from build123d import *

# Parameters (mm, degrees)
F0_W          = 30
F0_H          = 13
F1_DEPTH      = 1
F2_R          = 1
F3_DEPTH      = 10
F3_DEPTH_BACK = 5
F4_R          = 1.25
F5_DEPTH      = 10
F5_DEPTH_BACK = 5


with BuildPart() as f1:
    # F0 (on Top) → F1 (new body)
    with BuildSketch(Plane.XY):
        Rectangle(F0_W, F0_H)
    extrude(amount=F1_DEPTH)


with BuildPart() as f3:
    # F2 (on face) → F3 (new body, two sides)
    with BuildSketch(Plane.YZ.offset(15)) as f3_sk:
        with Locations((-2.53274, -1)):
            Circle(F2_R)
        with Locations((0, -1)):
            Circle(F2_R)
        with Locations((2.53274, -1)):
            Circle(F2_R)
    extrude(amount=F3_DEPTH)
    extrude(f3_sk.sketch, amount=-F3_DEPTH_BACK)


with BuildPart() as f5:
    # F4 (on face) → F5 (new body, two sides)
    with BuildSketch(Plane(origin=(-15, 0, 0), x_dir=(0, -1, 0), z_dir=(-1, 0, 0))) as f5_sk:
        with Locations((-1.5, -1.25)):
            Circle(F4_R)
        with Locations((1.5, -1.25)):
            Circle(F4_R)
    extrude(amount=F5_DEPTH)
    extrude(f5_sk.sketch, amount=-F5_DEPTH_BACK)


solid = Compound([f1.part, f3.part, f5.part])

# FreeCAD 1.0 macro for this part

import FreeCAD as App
import Part
import Sketcher
from FreeCAD import Vector
Q = App.Units.Quantity

doc = App.newDocument("Part")
body = doc.addObject("PartDesign::Body", "Body")

# Sketch on XY plane
sketch1 = body.newObject("Sketcher::SketchObject", "Sketch")
sketch1.AttachmentSupport = (doc.getObject("XY_Plane"), [""])
sketch1.MapMode = "FlatFace"
sketch1.addGeometry([
    Part.LineSegment(Vector(-15, 6, 0), Vector(-15, -6, 0)),
    Part.LineSegment(Vector(-15, -6, 0), Vector(15, -6, 0)),
    Part.LineSegment(Vector(15, -6, 0), Vector(15, 6, 0)),
    Part.LineSegment(Vector(15, 6, 0), Vector(-15, 6, 0)),
], False)
sketch1.addConstraint([
    Sketcher.Constraint("Coincident", 0, 2, 1, 1),
    Sketcher.Constraint("Coincident", 1, 2, 2, 1),
    Sketcher.Constraint("Coincident", 2, 2, 3, 1),
    Sketcher.Constraint("Coincident", 3, 2, 0, 1),
    Sketcher.Constraint("Vertical", 0),
    Sketcher.Constraint("Horizontal", 1),
    Sketcher.Constraint("Vertical", 2),
    Sketcher.Constraint("Horizontal", 3),
    Sketcher.Constraint("Symmetric", 0, 2, 2, 2, -1, 1),
    Sketcher.Constraint("DistanceX", 1, 1, 1, 2, Q("30 mm")),
    Sketcher.Constraint("DistanceY", 0, 2, 0, 1, Q("13 mm")),
])
pad1 = body.newObject("PartDesign::Pad", "Pad")
pad1.Profile = sketch1
pad1.Length = 1
body2 = doc.addObject("PartDesign::Body", "Body001")
body2.AllowCompound = True

# Sketch on YZ plane
sketch2 = body2.newObject("Sketcher::SketchObject", "Sketch001")
sketch2.AttachmentSupport = (doc.getObject("YZ_Plane001"), [""])
sketch2.MapMode = "FlatFace"
sketch2.AttachmentOffset = App.Placement(Vector(0, 0, 15), App.Rotation())
sketch2.addGeometry([
    Part.Circle(Vector(-2.5, -1, 0), Vector(0, 0, 1), 1),
    Part.Circle(Vector(0, -1, 0), Vector(0, 0, 1), 1),
    Part.Circle(Vector(2.5, -1, 0), Vector(0, 0, 1), 1),
], False)
sketch2.addConstraint([
    Sketcher.Constraint("Equal", 0, 1),
    Sketcher.Constraint("Equal", 1, 2),
    Sketcher.Constraint("Symmetric", 0, 3, 2, 3, -2),
    Sketcher.Constraint("PointOnObject", 1, 3, -2),
    Sketcher.Constraint("Horizontal", 0, 3, 1, 3),
    Sketcher.Constraint("Diameter", 0, Q("2 mm")),
    Sketcher.Constraint("DistanceY", 0, 3, -1, 1, Q("1 mm")),
    Sketcher.Constraint("DistanceX", 0, 3, -1, 1, Q("2.53274 mm")),
])
pad2 = body2.newObject("PartDesign::Pad", "Pad001")
pad2.Profile = sketch2
pad2.Type = "TwoLengths"
pad2.Length = 10
pad2.Length2 = 5
body3 = doc.addObject("PartDesign::Body", "Body002")
body3.AllowCompound = True

# Sketch on YZ plane
sketch3 = body3.newObject("Sketcher::SketchObject", "Sketch002")
sketch3.AttachmentSupport = (doc.getObject("YZ_Plane002"), [""])
sketch3.MapMode = "FlatFace"
sketch3.AttachmentOffset = App.Placement(Vector(0, 0, -15), App.Rotation())
sketch3.addGeometry([
    Part.Circle(Vector(1.5, -1.2, 0), Vector(0, 0, 1), 1.2),
    Part.Circle(Vector(-1.5, -1.2, 0), Vector(0, 0, 1), 1.2),
], False)
sketch3.addConstraint([
    Sketcher.Constraint("Equal", 0, 1),
    Sketcher.Constraint("Symmetric", 0, 3, 1, 3, -2),
    Sketcher.Constraint("Diameter", 0, Q("2.5 mm")),
    Sketcher.Constraint("DistanceX", 1, 3, 0, 3, Q("3 mm")),
    Sketcher.Constraint("DistanceY", 0, 3, -1, 1, Q("1.25 mm")),
])
pad3 = body3.newObject("PartDesign::Pad", "Pad002")
pad3.Profile = sketch3
pad3.Type = "TwoLengths"
pad3.Length = 10
pad3.Length2 = 5
pad3.Reversed = True

doc.recompute()
